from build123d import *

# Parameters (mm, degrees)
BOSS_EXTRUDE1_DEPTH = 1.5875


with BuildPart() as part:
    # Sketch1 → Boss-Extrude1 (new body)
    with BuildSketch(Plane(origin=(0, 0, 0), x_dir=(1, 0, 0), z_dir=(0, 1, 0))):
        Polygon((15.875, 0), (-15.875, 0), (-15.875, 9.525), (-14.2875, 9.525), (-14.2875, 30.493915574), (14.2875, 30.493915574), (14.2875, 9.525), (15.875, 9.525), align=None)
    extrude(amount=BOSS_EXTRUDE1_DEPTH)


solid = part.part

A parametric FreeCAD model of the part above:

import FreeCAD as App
import Part
import Sketcher

V = App.Vector
Q = App.Units.Quantity

doc = App.newDocument("Part")
body = doc.addObject("PartDesign::Body", "Body")

# Sketch on XZ plane
sketch1 = body.newObject("Sketcher::SketchObject", "Sketch")
sketch1.AttachmentSupport = (doc.getObject("XZ_Plane"), [""])
sketch1.MapMode = "FlatFace"
sketch1.addGeometry([
    Part.LineSegment(V(-15.9, 0, 0), V(15.9, 0, 0)),  # 0
    Part.LineSegment(V(15.9, 0, 0), V(15.9, -9.5, 0)),  # 1
    Part.LineSegment(V(15.9, -9.5, 0), V(14.3, -9.5, 0)),  # 2
    Part.LineSegment(V(14.3, -9.5, 0), V(14.3, -30.5, 0)),  # 3
    Part.LineSegment(V(14.3, -30.5, 0), V(-14.3, -30.5, 0)),  # 4
    Part.LineSegment(V(-14.3, -30.5, 0), V(-14.3, -9.5, 0)),  # 5
    Part.LineSegment(V(-14.3, -9.5, 0), V(-15.9, -9.5, 0)),  # 6
    Part.LineSegment(V(-15.9, -9.5, 0), V(-15.9, 0, 0)),  # 7
], False)
sketch1.addConstraint([
    Sketcher.Constraint("Coincident", 0, 2, 1, 1),
    Sketcher.Constraint("Coincident", 1, 2, 2, 1),
    Sketcher.Constraint("Coincident", 2, 2, 3, 1),
    Sketcher.Constraint("Coincident", 3, 2, 4, 1),
    Sketcher.Constraint("Coincident", 4, 2, 5, 1),
    Sketcher.Constraint("Coincident", 5, 2, 6, 1),
    Sketcher.Constraint("Coincident", 6, 2, 7, 1),
    Sketcher.Constraint("Coincident", 7, 2, 0, 1),
    Sketcher.Constraint("Horizontal", 0),
    Sketcher.Constraint("Vertical", 1),
    Sketcher.Constraint("Horizontal", 2),
    Sketcher.Constraint("Vertical", 3),
    Sketcher.Constraint("Horizontal", 4),
    Sketcher.Constraint("Vertical", 5),
    Sketcher.Constraint("Horizontal", 6),
    Sketcher.Constraint("Vertical", 7),
    Sketcher.Constraint("Symmetric", 0, 2, 7, 2, -1, 1),
    Sketcher.Constraint("Symmetric", 2, 2, 5, 2, -2),
    Sketcher.Constraint("DistanceX", 0, 1, 0, 2, Q("1.25 in")),
    Sketcher.Constraint("DistanceX", 2, 2, 2, 1, Q("0.0625 in")),
    Sketcher.Constraint("DistanceY", 1, 2, 1, 1, Q("0.375 in")),
    Sketcher.Constraint("DistanceY", 3, 2, 3, 1, 20.968916),
])
pad1 = body.newObject("PartDesign::Pad", "Pad")
pad1.Profile = sketch1
pad1.Length = Q("0.0625 in")
pad1.Reversed = True

doc.recompute()
